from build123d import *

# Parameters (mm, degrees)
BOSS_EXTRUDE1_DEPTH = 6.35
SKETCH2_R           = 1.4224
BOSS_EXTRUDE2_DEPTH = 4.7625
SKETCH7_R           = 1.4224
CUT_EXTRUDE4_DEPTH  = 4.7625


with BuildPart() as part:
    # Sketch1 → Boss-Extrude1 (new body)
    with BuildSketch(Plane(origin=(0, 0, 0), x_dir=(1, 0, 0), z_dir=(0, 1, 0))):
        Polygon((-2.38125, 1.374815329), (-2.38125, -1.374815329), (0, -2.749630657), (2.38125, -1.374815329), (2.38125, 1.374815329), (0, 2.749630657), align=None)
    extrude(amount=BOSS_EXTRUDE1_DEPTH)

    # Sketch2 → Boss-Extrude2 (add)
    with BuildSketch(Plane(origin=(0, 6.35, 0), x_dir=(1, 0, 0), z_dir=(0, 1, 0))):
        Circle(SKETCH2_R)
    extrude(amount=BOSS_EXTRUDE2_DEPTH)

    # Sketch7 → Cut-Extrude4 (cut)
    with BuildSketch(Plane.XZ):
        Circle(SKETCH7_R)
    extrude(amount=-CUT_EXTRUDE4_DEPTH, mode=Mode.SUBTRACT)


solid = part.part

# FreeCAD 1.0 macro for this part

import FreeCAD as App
import Part
import Sketcher
from FreeCAD import Vector
Q = App.Units.Quantity

doc = App.newDocument("Part")
body = doc.addObject("PartDesign::Body", "Body")

# Sketch on XZ plane
sketch1 = body.newObject("Sketcher::SketchObject", "Sketch")
sketch1.AttachmentSupport = (doc.getObject("XZ_Plane"), [""])
sketch1.MapMode = "FlatFace"
sketch1.addGeometry([
    Part.LineSegment(Vector(-2.4, -1.4, 0), Vector(-2.4, 1.4, 0)),  # 0
    Part.LineSegment(Vector(-2.4, 1.4, 0), Vector(0, 2.7, 0)),  # 1
    Part.LineSegment(Vector(0, 2.7, 0), Vector(2.4, 1.4, 0)),  # 2
    Part.LineSegment(Vector(2.4, 1.4, 0), Vector(2.4, -1.4, 0)),  # 3
    Part.LineSegment(Vector(2.4, -1.4, 0), Vector(0, -2.7, 0)),  # 4
    Part.LineSegment(Vector(0, -2.7, 0), Vector(-2.4, -1.4, 0)),  # 5
], False)
sketch1.addConstraint([
    Sketcher.Constraint("Coincident", 0, 2, 1, 1),
    Sketcher.Constraint("Coincident", 1, 2, 2, 1),
    Sketcher.Constraint("Coincident", 2, 2, 3, 1),
    Sketcher.Constraint("Coincident", 3, 2, 4, 1),
    Sketcher.Constraint("Coincident", 4, 2, 5, 1),
    Sketcher.Constraint("Coincident", 5, 2, 0, 1),
    Sketcher.Constraint("Vertical", 0),
    Sketcher.Constraint("Vertical", 3),
    Sketcher.Constraint("Symmetric", 0, 2, 3, 2, -1, 1),
    Sketcher.Constraint("Symmetric", 1, 2, 4, 2, -1, 1),
    Sketcher.Constraint("PointOnObject", 1, 2, -2),
    Sketcher.Constraint("Parallel", 2, 5),
    Sketcher.Constraint("Horizontal", 0, 2, 2, 2),
    Sketcher.Constraint("Angle", 1, Q("30 deg")),
    Sketcher.Constraint("DistanceX", 0, 2, -1, 1, Q("0.09375 in")),
    Sketcher.Constraint("DistanceY", 0, 1, 0, 2, 2.749631),
])
pad1 = body.newObject("PartDesign::Pad", "Pad")
pad1.Profile = sketch1
pad1.Length = Q("0.25 in")
pad1.Reversed = True

# Sketch on XZ plane
sketch2 = body.newObject("Sketcher::SketchObject", "Sketch001")
sketch2.AttachmentSupport = (doc.getObject("XZ_Plane"), [""])
sketch2.MapMode = "FlatFace"
sketch2.AttachmentOffset = App.Placement(Vector(0, 0, -0.25 * 25.4), App.Rotation())
sketch2.addGeometry(Part.Circle(Vector(0, 0, 0), Vector(0, 0, 1), 1.4), False)
sketch2.addConstraint([
    Sketcher.Constraint("Coincident", 0, 3, -1, 1),
    Sketcher.Constraint("Diameter", 0, Q("0.112 in")),
])
pad2 = body.newObject("PartDesign::Pad", "Pad001")
pad2.Profile = sketch2
pad2.Length = Q("0.1875 in")
pad2.Reversed = True

# Sketch on XZ plane
sketch3 = body.newObject("Sketcher::SketchObject", "Sketch002")
sketch3.AttachmentSupport = (doc.getObject("XZ_Plane"), [""])
sketch3.MapMode = "FlatFace"
sketch3.addGeometry(Part.Circle(Vector(0, 0, 0), Vector(0, 0, 1), 1.4), False)
sketch3.addConstraint([
    Sketcher.Constraint("Coincident", 0, 3, -1, 1),
    Sketcher.Constraint("Diameter", 0, Q("0.112 in")),
])
pocket1 = body.newObject("PartDesign::Pocket", "Pocket")
pocket1.Profile = sketch3
pocket1.Length = Q("0.1875 in")

doc.recompute()
